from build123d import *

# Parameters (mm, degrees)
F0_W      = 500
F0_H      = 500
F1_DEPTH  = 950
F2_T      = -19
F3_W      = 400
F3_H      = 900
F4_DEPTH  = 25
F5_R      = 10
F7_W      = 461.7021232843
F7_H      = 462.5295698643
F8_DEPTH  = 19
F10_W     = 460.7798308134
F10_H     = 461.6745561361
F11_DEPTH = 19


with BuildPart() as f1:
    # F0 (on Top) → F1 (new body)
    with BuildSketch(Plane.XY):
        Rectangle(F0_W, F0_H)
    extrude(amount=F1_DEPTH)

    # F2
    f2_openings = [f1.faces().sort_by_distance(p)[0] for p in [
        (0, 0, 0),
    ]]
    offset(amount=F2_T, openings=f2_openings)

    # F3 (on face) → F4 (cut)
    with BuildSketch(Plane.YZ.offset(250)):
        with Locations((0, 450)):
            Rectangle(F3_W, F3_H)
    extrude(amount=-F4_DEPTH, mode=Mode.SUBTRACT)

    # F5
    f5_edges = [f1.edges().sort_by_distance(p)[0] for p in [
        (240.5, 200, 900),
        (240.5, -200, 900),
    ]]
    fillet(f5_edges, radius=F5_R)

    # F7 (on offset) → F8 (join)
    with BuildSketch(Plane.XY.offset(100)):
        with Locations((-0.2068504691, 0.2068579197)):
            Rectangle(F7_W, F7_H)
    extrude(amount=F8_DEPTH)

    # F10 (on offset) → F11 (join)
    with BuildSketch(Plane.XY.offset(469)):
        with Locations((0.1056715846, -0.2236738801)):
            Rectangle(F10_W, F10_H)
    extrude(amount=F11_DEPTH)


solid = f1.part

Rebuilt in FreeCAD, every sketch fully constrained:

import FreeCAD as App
import Part
import Sketcher
from FreeCAD import Vector
Q = App.Units.Quantity


def edges_at(feature, points):
    """Names of the edges that pass closest to the given points."""
    edges = feature.Shape.Edges
    near = lambda p: min(range(len(edges)), key=lambda i: edges[i].distToShape(Part.Vertex(*p))[0])
    return sorted({f"Edge{near(p) + 1}" for p in points})


def faces_at(feature, points):
    """Names of the faces that lie closest to the given points."""
    faces = feature.Shape.Faces
    near = lambda p: min(range(len(faces)), key=lambda i: faces[i].distToShape(Part.Vertex(*p))[0])
    return sorted({f"Face{near(p) + 1}" for p in points})


def add_polygon(sketch, points):
    """Adds a closed chain of lines whose ends are joined by coincident constraints."""
    first, n = sketch.GeometryCount, len(points)
    for a, b in zip(points, points[1:] + points[:1]):
        sketch.addGeometry(Part.LineSegment(App.Vector(*a, 0), App.Vector(*b, 0)), False)
    for i in range(n):
        sketch.addConstraint(Sketcher.Constraint("Coincident", first + i, 2, first + (i + 1) % n, 1))

doc = App.newDocument("Part")
body = doc.addObject("PartDesign::Body", "Body")

# Sketch on XY plane
sketch1 = doc.addObject("Sketcher::SketchObject", "Sketch")
body.addObject(sketch1)
sketch1.AttachmentSupport = (doc.XY_Plane, [""])
sketch1.MapMode = "FlatFace"
add_polygon(sketch1, [(-250, 250), (-250, -250), (250, -250), (250, 250)])  # lines 0-3
sketch1.addConstraint([
    Sketcher.Constraint("Vertical", 0),
    Sketcher.Constraint("Horizontal", 1),
    Sketcher.Constraint("Vertical", 2),
    Sketcher.Constraint("Horizontal", 3),
    Sketcher.Constraint("Symmetric", 0, 2, 2, 2, -1, 1),
    Sketcher.Constraint("Equal", 3, 0),
    Sketcher.Constraint("DistanceX", 1, 1, 1, 2, Q("500 mm")),
])
pad1 = doc.addObject("PartDesign::Pad", "Pad")
body.addObject(pad1)
pad1.Profile = sketch1
pad1.Length = 950
doc.recompute()

thickness = doc.addObject("PartDesign::Thickness", "Thickness")
body.addObject(thickness)
thickness.Base = (pad1, faces_at(pad1, [(0, 0, 0)]))
thickness.Value = 19
thickness.Reversed = True
thickness.Join = "Arc"

# Sketch on YZ plane
sketch2 = doc.addObject("Sketcher::SketchObject", "Sketch001")
body.addObject(sketch2)
sketch2.AttachmentSupport = (doc.YZ_Plane, [""])
sketch2.MapMode = "FlatFace"
sketch2.AttachmentOffset = App.Placement(Vector(0, 0, 250), App.Rotation())
add_polygon(sketch2, [(-200, 900), (-200, 0), (200, 0), (200, 900)])  # lines 0-3
sketch2.addConstraint([
    Sketcher.Constraint("Vertical", 0),
    Sketcher.Constraint("Horizontal", 1),
    Sketcher.Constraint("Vertical", 2),
    Sketcher.Constraint("Horizontal", 3),
    Sketcher.Constraint("Symmetric", 0, 2, 1, 2, -1, 1),
    Sketcher.Constraint("DistanceX", 1, 1, 1, 2, Q("400 mm")),
    Sketcher.Constraint("DistanceY", 0, 2, 0, 1, Q("900 mm")),
])
pocket1 = doc.addObject("PartDesign::Pocket", "Pocket")
body.addObject(pocket1)
pocket1.Profile = sketch2
pocket1.Length = 25
doc.recompute()

fillet = doc.addObject("PartDesign::Fillet", "Fillet")
body.addObject(fillet)
fillet.Base = (pocket1, edges_at(pocket1, [(240.5, 200, 900), (240.5, -200, 900)]))
fillet.Radius = 10

# Sketch on XY plane
sketch3 = doc.addObject("Sketcher::SketchObject", "Sketch002")
body.addObject(sketch3)
sketch3.AttachmentSupport = (doc.XY_Plane, [""])
sketch3.MapMode = "FlatFace"
sketch3.AttachmentOffset = App.Placement(Vector(0, 0, 100), App.Rotation())
add_polygon(sketch3, [(-231, 231), (-231, -231), (231, -231), (231, 231)])  # lines 0-3
sketch3.addConstraint([
    Sketcher.Constraint("Vertical", 0),
    Sketcher.Constraint("Horizontal", 1),
    Sketcher.Constraint("Vertical", 2),
    Sketcher.Constraint("Horizontal", 3),
    Sketcher.Constraint("DistanceY", 0, 2, 0, 1, Q("462.52957 mm")),
    Sketcher.Constraint("DistanceX", 1, 1, 1, 2, Q("461.702123 mm")),
    Sketcher.Constraint("DistanceX", -1, 1, 1, 2, Q("230.644211 mm")),
    Sketcher.Constraint("DistanceY", 0, 2, -1, 1, Q("231.057927 mm")),
])
pad2 = doc.addObject("PartDesign::Pad", "Pad001")
body.addObject(pad2)
pad2.Profile = sketch3
pad2.Length = 19

# Sketch on XY plane
sketch4 = doc.addObject("Sketcher::SketchObject", "Sketch003")
body.addObject(sketch4)
sketch4.AttachmentSupport = (doc.XY_Plane, [""])
sketch4.MapMode = "FlatFace"
sketch4.AttachmentOffset = App.Placement(Vector(0, 0, 469), App.Rotation())
add_polygon(sketch4, [(-230, 231), (-230, -231), (230, -231), (230, 231)])  # lines 0-3
sketch4.addConstraint([
    Sketcher.Constraint("Vertical", 0),
    Sketcher.Constraint("Horizontal", 1),
    Sketcher.Constraint("Vertical", 2),
    Sketcher.Constraint("Horizontal", 3),
    Sketcher.Constraint("DistanceX", 1, 1, 1, 2, Q("460.779831 mm")),
    Sketcher.Constraint("DistanceY", 0, 2, 0, 1, Q("461.674556 mm")),
    Sketcher.Constraint("DistanceY", 0, 2, -1, 1, Q("231.060952 mm")),
    Sketcher.Constraint("DistanceX", 0, 2, -1, 1, Q("230.284244 mm")),
])
pad3 = doc.addObject("PartDesign::Pad", "Pad002")
body.addObject(pad3)
pad3.Profile = sketch4
pad3.Length = 19

doc.recompute()
